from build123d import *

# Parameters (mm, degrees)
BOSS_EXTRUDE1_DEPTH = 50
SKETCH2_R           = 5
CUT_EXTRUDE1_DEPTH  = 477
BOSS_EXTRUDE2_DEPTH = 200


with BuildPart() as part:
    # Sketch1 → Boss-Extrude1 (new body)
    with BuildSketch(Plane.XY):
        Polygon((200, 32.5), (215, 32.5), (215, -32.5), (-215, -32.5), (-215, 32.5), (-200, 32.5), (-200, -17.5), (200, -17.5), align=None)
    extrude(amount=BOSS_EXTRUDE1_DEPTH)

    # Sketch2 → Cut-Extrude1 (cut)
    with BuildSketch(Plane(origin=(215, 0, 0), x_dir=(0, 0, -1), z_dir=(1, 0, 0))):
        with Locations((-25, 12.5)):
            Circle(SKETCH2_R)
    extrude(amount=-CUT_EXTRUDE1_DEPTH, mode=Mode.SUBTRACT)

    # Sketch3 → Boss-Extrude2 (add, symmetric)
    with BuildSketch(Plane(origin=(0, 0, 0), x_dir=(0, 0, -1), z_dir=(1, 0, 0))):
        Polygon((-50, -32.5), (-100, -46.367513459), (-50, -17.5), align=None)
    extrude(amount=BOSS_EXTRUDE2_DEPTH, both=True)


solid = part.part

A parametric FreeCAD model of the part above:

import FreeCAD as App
import Part
import Sketcher
Q = App.Units.Quantity

doc = App.newDocument("Part")
params = doc.addObject("Spreadsheet::Sheet", "Params")
for row, (alias, value) in enumerate([
    ("sketch1_width", "15 mm"),
    ("sketch1_width2", "400 mm"),
    ("sketch1_height", "50 mm"),
    ("sketch1_height2", "65 mm"),
    ("pad1_length", "50 mm"),
    ("sketch2_diameter", "10 mm"),
    ("pocket1_length", "477 mm"),
    ("sketch3_width", "15 mm"),
    ("pad2_length", "400 mm"),
], start=1):
    params.set(f"A{row}", alias)
    params.set(f"B{row}", "=" + value)
    params.setAlias(f"B{row}", alias)

body = doc.addObject("PartDesign::Body", "Body")

# Sketch on XY plane
sketch1 = doc.addObject("Sketcher::SketchObject", "Sketch")
body.addObject(sketch1)
sketch1.AttachmentSupport = (doc.XY_Plane, [""])
sketch1.MapMode = "FlatFace"
sketch1.addGeometry(Part.LineSegment(App.Vector(215, 32, 0), App.Vector(200, 32, 0)), False)
sketch1.addGeometry(Part.LineSegment(App.Vector(200, 32, 0), App.Vector(200, -18, 0)), False)
sketch1.addGeometry(Part.LineSegment(App.Vector(200, -18, 0), App.Vector(-200, -18, 0)), False)
sketch1.addGeometry(Part.LineSegment(App.Vector(-200, -18, 0), App.Vector(-200, 32, 0)), False)
sketch1.addGeometry(Part.LineSegment(App.Vector(-200, 32, 0), App.Vector(-215, 32, 0)), False)
sketch1.addGeometry(Part.LineSegment(App.Vector(-215, 32, 0), App.Vector(-215, -32, 0)), False)
sketch1.addGeometry(Part.LineSegment(App.Vector(-215, -32, 0), App.Vector(215, -32, 0)), False)
sketch1.addGeometry(Part.LineSegment(App.Vector(215, -32, 0), App.Vector(215, 32, 0)), False)
sketch1.addConstraint(Sketcher.Constraint("Coincident", 0, 2, 1, 1))
sketch1.addConstraint(Sketcher.Constraint("Coincident", 1, 2, 2, 1))
sketch1.addConstraint(Sketcher.Constraint("Coincident", 2, 2, 3, 1))
sketch1.addConstraint(Sketcher.Constraint("Coincident", 3, 2, 4, 1))
sketch1.addConstraint(Sketcher.Constraint("Coincident", 4, 2, 5, 1))
sketch1.addConstraint(Sketcher.Constraint("Coincident", 5, 2, 6, 1))
sketch1.addConstraint(Sketcher.Constraint("Coincident", 6, 2, 7, 1))
sketch1.addConstraint(Sketcher.Constraint("Coincident", 7, 2, 0, 1))
sketch1.addConstraint(Sketcher.Constraint("Horizontal", 0))
sketch1.addConstraint(Sketcher.Constraint("Vertical", 1))
sketch1.addConstraint(Sketcher.Constraint("Horizontal", 2))
sketch1.addConstraint(Sketcher.Constraint("Vertical", 3))
sketch1.addConstraint(Sketcher.Constraint("Horizontal", 4))
sketch1.addConstraint(Sketcher.Constraint("Vertical", 5))
sketch1.addConstraint(Sketcher.Constraint("Horizontal", 6))
sketch1.addConstraint(Sketcher.Constraint("Vertical", 7))
sketch1.addConstraint(Sketcher.Constraint("Symmetric", 4, 2, 6, 2, -1, 1))
sketch1.addConstraint(Sketcher.Constraint("Symmetric", 0, 2, 3, 2, -2))
sketch1.addConstraint(Sketcher.Constraint("DistanceX", 0, 2, 0, 1, Q("15 mm")))
sketch1.addConstraint(Sketcher.Constraint("DistanceX", 2, 2, 2, 1, Q("400 mm")))
sketch1.addConstraint(Sketcher.Constraint("DistanceY", 1, 2, 1, 1, Q("50 mm")))
sketch1.addConstraint(Sketcher.Constraint("DistanceY", 5, 2, 5, 1, Q("65 mm")))
sketch1.setExpression("Constraints[18]", "Params.sketch1_width")
sketch1.setExpression("Constraints[19]", "Params.sketch1_width2")
sketch1.setExpression("Constraints[20]", "Params.sketch1_height")
sketch1.setExpression("Constraints[21]", "Params.sketch1_height2")
pad1 = doc.addObject("PartDesign::Pad", "Pad")
body.addObject(pad1)
pad1.Profile = sketch1
pad1.setExpression("Length", "Params.pad1_length")

# Sketch on YZ plane
sketch2 = doc.addObject("Sketcher::SketchObject", "Sketch001")
body.addObject(sketch2)
sketch2.AttachmentSupport = (doc.YZ_Plane, [""])
sketch2.MapMode = "FlatFace"
sketch2.AttachmentOffset = App.Placement(App.Vector(0, 0, 215), App.Rotation())
sketch2.addGeometry(Part.Circle(App.Vector(12, 25, 0), App.Vector(0, 0, 1), 5), False)
sketch2.addConstraint(Sketcher.Constraint("Diameter", 0, Q("10 mm")))
sketch2.addConstraint(Sketcher.Constraint("DistanceY", -1, 1, 0, 3, Q("25 mm")))
sketch2.addConstraint(Sketcher.Constraint("DistanceX", -1, 1, 0, 3, Q("12.5 mm")))
sketch2.setExpression("Constraints[0]", "Params.sketch2_diameter")
pocket1 = doc.addObject("PartDesign::Pocket", "Pocket")
body.addObject(pocket1)
pocket1.Profile = sketch2
pocket1.setExpression("Length", "Params.pocket1_length")

# Sketch on YZ plane
sketch3 = doc.addObject("Sketcher::SketchObject", "Sketch002")
body.addObject(sketch3)
sketch3.AttachmentSupport = (doc.YZ_Plane, [""])
sketch3.MapMode = "FlatFace"
sketch3.addGeometry(Part.LineSegment(App.Vector(-46, 100, 0), App.Vector(-32, 50, 0)), False)
sketch3.addGeometry(Part.LineSegment(App.Vector(-32, 50, 0), App.Vector(-18, 50, 0)), False)
sketch3.addGeometry(Part.LineSegment(App.Vector(-18, 50, 0), App.Vector(-46, 100, 0)), False)
sketch3.addConstraint(Sketcher.Constraint("Coincident", 0, 2, 1, 1))
sketch3.addConstraint(Sketcher.Constraint("Coincident", 1, 2, 2, 1))
sketch3.addConstraint(Sketcher.Constraint("Coincident", 2, 2, 0, 1))
sketch3.addConstraint(Sketcher.Constraint("Horizontal", 1))
sketch3.addConstraint(Sketcher.Constraint("DistanceX", 1, 1, 1, 2, Q("15 mm")))
sketch3.addConstraint(Sketcher.Constraint("Angle", 2, Q("120 deg")))
sketch3.addConstraint(Sketcher.Constraint("DistanceY", -1, 1, 0, 2, Q("50 mm")))
sketch3.addConstraint(Sketcher.Constraint("DistanceY", -1, 1, 2, 2, Q("100 mm")))
sketch3.addConstraint(Sketcher.Constraint("DistanceX", 0, 2, -1, 1, Q("32.5 mm")))
sketch3.setExpression("Constraints[4]", "Params.sketch3_width")
pad2 = doc.addObject("PartDesign::Pad", "Pad001")
body.addObject(pad2)
pad2.Profile = sketch3
pad2.setExpression("Length", "Params.pad2_length")
pad2.Midplane = True

doc.recompute()
